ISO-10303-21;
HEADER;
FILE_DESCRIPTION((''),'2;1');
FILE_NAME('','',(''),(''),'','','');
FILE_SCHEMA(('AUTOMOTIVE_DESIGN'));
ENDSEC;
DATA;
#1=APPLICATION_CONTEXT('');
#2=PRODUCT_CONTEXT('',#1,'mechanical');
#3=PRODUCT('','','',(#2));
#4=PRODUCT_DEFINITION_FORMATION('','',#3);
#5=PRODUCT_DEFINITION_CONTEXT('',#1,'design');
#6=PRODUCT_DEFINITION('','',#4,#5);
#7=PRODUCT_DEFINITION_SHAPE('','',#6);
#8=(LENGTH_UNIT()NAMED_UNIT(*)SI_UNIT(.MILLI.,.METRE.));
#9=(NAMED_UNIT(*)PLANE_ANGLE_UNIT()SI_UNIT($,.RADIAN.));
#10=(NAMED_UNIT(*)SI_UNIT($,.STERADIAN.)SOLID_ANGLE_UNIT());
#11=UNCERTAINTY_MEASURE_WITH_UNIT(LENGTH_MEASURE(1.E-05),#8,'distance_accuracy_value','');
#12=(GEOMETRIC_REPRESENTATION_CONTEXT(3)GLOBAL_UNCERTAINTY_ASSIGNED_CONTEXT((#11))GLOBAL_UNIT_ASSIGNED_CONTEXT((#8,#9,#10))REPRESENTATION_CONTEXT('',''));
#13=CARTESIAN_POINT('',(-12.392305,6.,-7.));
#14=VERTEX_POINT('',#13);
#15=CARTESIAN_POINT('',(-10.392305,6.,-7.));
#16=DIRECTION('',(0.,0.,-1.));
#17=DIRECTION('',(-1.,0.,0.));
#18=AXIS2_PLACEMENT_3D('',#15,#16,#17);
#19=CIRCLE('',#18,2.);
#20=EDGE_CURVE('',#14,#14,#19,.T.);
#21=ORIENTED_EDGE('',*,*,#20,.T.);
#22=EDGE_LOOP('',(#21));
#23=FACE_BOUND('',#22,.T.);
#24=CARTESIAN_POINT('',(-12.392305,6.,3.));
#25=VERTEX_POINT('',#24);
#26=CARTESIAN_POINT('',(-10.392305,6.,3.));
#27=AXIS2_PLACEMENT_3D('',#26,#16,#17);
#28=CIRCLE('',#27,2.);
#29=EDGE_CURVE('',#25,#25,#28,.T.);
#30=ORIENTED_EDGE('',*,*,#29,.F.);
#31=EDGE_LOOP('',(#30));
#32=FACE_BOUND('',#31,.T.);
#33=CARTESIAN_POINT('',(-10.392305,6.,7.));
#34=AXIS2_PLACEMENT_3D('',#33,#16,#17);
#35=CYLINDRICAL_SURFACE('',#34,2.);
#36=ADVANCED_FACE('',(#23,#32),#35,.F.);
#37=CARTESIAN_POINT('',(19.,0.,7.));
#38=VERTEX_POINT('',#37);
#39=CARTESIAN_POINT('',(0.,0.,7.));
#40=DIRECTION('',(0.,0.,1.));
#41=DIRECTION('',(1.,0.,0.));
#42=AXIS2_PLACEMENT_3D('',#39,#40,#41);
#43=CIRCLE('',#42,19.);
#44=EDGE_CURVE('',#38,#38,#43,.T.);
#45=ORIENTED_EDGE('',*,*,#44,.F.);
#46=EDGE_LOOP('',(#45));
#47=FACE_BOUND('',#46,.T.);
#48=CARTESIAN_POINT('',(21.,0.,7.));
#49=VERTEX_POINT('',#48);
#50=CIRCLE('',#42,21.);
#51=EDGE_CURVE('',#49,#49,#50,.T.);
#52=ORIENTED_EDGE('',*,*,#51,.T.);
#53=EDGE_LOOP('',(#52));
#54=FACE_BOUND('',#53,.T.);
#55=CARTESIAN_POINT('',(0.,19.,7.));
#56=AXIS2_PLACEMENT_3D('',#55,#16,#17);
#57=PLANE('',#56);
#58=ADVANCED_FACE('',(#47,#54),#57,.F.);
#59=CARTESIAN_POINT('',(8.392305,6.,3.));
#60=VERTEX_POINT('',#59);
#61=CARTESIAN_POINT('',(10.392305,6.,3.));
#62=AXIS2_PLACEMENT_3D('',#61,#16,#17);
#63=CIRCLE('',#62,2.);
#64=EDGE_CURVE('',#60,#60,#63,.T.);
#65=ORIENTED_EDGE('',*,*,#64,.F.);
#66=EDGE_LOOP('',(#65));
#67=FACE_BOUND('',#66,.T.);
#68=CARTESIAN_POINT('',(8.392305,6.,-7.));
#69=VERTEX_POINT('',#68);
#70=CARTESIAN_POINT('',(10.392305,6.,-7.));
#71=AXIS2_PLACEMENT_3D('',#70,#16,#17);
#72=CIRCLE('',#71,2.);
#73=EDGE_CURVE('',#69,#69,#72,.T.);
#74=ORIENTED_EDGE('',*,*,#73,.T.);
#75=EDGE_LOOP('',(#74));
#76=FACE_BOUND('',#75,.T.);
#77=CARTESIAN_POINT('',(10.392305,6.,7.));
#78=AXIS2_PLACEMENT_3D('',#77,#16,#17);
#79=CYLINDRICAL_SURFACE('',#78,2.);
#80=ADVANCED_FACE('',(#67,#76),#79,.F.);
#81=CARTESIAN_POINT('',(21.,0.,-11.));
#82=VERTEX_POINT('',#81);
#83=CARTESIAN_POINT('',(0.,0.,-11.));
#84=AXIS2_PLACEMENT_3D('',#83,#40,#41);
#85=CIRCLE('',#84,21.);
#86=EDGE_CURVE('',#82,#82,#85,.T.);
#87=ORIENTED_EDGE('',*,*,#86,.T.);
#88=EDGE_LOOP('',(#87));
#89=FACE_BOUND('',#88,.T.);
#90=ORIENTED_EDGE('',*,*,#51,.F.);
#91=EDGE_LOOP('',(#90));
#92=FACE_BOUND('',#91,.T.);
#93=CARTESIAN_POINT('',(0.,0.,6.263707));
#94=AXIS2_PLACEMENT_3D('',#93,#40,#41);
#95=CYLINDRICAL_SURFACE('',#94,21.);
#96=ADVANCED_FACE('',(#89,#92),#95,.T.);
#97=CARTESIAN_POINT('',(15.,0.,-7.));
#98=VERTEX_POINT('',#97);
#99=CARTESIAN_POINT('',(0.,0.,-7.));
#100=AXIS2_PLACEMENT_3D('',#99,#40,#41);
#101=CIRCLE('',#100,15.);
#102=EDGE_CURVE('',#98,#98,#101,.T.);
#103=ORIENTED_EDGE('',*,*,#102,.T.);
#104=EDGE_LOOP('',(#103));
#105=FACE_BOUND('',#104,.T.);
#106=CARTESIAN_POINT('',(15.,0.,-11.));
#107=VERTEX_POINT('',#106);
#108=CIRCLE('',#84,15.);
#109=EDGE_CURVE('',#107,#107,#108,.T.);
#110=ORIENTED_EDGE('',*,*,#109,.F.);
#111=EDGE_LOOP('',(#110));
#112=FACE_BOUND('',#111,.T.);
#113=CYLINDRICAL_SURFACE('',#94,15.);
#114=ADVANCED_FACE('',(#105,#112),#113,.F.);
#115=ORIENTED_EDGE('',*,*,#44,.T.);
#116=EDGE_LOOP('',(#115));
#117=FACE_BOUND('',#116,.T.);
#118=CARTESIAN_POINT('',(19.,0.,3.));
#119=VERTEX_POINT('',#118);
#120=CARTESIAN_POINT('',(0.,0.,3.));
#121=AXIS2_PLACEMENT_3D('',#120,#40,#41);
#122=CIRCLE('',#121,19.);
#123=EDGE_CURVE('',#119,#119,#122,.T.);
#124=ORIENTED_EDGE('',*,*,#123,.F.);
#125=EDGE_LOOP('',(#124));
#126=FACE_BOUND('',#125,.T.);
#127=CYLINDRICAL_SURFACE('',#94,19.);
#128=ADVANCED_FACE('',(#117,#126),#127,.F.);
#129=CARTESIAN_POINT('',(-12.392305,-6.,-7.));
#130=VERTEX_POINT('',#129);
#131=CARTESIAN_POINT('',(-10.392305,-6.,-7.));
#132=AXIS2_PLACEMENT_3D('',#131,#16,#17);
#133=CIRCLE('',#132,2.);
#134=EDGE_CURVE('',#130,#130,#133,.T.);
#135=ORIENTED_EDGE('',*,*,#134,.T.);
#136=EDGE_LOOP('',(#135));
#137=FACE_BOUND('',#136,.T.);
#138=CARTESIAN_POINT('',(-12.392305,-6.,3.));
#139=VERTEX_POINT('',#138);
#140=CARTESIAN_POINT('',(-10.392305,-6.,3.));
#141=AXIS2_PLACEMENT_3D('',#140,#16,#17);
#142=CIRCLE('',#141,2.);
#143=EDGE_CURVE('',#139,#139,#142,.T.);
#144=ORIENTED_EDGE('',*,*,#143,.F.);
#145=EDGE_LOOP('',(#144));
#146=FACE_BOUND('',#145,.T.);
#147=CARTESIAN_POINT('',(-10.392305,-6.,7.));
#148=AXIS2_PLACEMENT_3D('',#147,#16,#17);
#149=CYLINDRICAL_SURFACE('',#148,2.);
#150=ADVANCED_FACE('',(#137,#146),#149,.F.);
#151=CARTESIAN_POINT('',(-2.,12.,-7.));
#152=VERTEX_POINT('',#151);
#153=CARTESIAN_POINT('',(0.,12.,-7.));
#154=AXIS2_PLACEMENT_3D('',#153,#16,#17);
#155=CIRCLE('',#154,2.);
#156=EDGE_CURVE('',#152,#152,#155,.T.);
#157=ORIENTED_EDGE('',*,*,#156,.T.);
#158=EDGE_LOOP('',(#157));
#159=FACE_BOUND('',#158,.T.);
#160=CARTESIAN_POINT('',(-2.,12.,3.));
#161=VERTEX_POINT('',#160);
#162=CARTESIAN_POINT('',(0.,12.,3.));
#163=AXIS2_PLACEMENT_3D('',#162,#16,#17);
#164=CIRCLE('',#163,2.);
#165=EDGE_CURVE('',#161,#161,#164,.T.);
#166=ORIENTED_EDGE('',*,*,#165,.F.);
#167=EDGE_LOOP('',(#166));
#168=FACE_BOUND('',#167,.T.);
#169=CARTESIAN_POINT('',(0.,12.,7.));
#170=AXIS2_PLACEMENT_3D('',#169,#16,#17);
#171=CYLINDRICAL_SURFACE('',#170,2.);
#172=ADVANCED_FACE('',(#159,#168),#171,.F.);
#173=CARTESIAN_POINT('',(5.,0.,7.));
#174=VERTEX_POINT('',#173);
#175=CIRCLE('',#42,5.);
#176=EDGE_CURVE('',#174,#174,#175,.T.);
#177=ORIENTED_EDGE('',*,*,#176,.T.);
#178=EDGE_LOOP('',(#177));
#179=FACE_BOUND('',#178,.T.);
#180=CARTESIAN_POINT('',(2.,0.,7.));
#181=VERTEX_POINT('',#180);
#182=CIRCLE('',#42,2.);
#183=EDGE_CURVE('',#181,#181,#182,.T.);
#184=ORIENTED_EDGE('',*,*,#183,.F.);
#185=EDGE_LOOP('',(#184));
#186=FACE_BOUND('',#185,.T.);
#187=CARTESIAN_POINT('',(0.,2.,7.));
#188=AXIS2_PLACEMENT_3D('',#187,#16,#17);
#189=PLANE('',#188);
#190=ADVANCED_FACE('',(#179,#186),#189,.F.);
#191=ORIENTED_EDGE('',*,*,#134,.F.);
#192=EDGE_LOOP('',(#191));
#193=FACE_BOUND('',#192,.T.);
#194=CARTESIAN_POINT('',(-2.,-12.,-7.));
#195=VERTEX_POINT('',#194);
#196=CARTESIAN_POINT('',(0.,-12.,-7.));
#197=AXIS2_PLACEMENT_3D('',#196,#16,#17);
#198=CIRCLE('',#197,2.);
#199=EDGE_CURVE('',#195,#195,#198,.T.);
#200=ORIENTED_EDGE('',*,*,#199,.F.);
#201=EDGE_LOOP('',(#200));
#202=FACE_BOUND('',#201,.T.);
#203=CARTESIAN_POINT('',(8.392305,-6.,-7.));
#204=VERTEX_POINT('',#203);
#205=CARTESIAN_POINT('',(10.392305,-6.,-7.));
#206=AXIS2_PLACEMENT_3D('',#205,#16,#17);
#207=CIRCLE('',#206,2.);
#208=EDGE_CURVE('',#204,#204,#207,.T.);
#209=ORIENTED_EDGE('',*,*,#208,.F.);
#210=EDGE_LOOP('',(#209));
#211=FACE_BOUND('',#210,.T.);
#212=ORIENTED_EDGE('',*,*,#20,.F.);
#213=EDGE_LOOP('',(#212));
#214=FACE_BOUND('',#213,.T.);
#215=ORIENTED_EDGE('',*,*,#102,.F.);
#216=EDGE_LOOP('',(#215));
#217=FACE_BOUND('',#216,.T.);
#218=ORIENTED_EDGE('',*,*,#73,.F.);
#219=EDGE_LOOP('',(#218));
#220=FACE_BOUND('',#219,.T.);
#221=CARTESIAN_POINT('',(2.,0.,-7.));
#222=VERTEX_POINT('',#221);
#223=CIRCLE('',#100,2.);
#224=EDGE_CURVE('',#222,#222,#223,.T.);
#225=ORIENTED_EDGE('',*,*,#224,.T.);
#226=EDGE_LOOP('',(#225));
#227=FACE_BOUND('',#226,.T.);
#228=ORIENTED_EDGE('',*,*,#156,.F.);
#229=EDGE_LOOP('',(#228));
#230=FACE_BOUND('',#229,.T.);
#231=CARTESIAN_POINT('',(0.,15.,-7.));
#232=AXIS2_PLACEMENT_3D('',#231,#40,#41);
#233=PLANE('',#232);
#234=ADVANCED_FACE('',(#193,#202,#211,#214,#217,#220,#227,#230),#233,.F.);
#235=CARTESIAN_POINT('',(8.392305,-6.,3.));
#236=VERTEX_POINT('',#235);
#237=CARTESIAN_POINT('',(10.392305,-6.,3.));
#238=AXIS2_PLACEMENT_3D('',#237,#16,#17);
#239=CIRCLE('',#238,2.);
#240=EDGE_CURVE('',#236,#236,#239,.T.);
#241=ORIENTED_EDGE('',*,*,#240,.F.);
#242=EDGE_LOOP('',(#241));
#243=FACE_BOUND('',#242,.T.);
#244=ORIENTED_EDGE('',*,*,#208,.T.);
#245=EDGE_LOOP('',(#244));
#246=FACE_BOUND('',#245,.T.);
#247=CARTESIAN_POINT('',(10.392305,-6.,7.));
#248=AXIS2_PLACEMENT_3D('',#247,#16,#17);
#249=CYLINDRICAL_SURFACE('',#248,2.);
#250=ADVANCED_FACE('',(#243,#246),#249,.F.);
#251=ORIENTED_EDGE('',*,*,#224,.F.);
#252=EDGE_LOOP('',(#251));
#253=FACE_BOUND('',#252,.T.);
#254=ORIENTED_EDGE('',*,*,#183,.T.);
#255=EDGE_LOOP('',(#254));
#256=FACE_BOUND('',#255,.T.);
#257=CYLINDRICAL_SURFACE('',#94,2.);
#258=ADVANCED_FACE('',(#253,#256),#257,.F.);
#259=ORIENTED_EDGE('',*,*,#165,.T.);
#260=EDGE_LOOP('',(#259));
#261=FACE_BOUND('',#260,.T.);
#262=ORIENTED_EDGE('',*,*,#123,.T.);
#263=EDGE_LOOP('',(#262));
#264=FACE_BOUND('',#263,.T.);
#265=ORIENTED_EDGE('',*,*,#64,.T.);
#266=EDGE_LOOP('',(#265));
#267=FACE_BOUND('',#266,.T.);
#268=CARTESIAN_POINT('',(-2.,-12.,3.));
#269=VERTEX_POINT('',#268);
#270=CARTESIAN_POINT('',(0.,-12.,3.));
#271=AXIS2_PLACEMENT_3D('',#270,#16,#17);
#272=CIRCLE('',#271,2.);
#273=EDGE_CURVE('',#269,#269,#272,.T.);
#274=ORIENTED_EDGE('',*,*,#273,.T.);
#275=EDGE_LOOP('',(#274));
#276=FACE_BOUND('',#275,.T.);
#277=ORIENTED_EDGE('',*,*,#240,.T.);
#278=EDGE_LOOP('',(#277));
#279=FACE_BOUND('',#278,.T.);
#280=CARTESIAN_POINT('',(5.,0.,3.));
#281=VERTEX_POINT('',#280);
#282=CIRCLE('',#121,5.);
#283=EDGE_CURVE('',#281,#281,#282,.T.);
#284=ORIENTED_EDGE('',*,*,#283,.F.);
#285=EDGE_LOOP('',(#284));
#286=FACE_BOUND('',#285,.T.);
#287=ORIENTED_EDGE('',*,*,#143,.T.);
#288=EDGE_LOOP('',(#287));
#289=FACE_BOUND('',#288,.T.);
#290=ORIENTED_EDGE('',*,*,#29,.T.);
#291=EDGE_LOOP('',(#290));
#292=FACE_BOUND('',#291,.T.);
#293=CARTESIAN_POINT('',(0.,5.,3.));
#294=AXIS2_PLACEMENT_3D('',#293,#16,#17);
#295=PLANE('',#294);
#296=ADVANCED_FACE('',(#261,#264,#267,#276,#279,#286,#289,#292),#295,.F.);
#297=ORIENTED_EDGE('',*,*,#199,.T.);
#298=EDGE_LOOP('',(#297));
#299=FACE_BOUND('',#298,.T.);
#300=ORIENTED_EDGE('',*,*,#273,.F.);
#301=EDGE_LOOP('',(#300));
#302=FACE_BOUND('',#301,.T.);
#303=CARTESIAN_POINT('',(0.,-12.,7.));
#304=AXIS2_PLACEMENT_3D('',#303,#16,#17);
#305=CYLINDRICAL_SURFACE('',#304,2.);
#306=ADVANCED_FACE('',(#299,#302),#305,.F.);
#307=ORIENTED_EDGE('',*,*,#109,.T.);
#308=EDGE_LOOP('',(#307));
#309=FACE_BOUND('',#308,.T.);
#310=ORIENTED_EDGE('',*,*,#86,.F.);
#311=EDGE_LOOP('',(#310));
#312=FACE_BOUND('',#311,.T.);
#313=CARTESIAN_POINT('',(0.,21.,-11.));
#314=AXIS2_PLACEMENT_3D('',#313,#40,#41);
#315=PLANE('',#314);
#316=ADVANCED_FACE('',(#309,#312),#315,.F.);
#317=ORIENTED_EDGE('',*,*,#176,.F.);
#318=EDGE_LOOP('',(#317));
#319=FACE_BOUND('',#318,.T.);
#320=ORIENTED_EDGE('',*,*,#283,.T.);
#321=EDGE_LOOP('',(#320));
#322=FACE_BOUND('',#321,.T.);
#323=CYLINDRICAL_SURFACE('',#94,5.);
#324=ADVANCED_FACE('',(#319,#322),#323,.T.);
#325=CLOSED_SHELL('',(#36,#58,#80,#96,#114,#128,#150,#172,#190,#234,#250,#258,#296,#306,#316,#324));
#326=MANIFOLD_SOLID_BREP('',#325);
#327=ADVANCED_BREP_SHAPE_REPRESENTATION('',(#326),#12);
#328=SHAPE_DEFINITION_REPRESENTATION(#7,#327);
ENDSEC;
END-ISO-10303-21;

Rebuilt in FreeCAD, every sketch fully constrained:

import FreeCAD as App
import Part
import Sketcher

doc = App.newDocument("Part")
params = doc.addObject("Spreadsheet::Sheet", "Params")
for row, (alias, value) in enumerate([
    ("sketch1_width", "3 mm"),
    ("sketch1_width2", "13 mm"),
    ("sketch1_width3", "6 mm"),
    ("sketch1_width4", "2 mm"),
    ("sketch1_height", "4 mm"),
    ("revolution_angle", "360 deg"),
    ("sketch2_diameter", "4 mm"),
], start=1):
    params.set(f"A{row}", alias)
    params.set(f"B{row}", "=" + value)
    params.setAlias(f"B{row}", alias)

body = doc.addObject("PartDesign::Body", "Body")

# Sketch on YZ plane
sketch1 = body.newObject("Sketcher::SketchObject", "Sketch")
sketch1.AttachmentSupport = (doc.getObject("YZ_Plane"), [""])
sketch1.MapMode = "FlatFace"
sketch1.addGeometry([
    Part.LineSegment(App.Vector(5, 7, 0), App.Vector(2, 7, 0)),  # 0
    Part.LineSegment(App.Vector(2, 7, 0), App.Vector(2, -7, 0)),  # 1
    Part.LineSegment(App.Vector(2, -7, 0), App.Vector(15, -7, 0)),  # 2
    Part.LineSegment(App.Vector(15, -7, 0), App.Vector(15, -11, 0)),  # 3
    Part.LineSegment(App.Vector(15, -11, 0), App.Vector(21, -11, 0)),  # 4
    Part.LineSegment(App.Vector(21, -11, 0), App.Vector(21, 7, 0)),  # 5
    Part.LineSegment(App.Vector(21, 7, 0), App.Vector(19, 7, 0)),  # 6
    Part.LineSegment(App.Vector(19, 7, 0), App.Vector(19, 3, 0)),  # 7
    Part.LineSegment(App.Vector(19, 3, 0), App.Vector(5, 3, 0)),  # 8
    Part.LineSegment(App.Vector(5, 3, 0), App.Vector(5, 7, 0)),  # 9
], False)
sketch1.addConstraint([
    Sketcher.Constraint("Coincident", 0, 2, 1, 1),
    Sketcher.Constraint("Coincident", 1, 2, 2, 1),
    Sketcher.Constraint("Coincident", 2, 2, 3, 1),
    Sketcher.Constraint("Coincident", 3, 2, 4, 1),
    Sketcher.Constraint("Coincident", 4, 2, 5, 1),
    Sketcher.Constraint("Coincident", 5, 2, 6, 1),
    Sketcher.Constraint("Coincident", 6, 2, 7, 1),
    Sketcher.Constraint("Coincident", 7, 2, 8, 1),
    Sketcher.Constraint("Coincident", 8, 2, 9, 1),
    Sketcher.Constraint("Coincident", 9, 2, 0, 1),
    Sketcher.Constraint("Horizontal", 0),
    Sketcher.Constraint("Vertical", 1),
    Sketcher.Constraint("Horizontal", 2),
    Sketcher.Constraint("Vertical", 3),
    Sketcher.Constraint("Horizontal", 4),
    Sketcher.Constraint("Vertical", 5),
    Sketcher.Constraint("Horizontal", 6),
    Sketcher.Constraint("Vertical", 7),
    Sketcher.Constraint("Horizontal", 8),
    Sketcher.Constraint("Vertical", 9),
    Sketcher.Constraint("Horizontal", 0, 2, 5, 2),
    Sketcher.Constraint("Equal", 8, 1),
    Sketcher.Constraint("Equal", 3, 7),
    Sketcher.Constraint("DistanceX", 0, 2, 0, 1, 3.0),
    Sketcher.Constraint("DistanceX", 2, 1, 2, 2, 13.0),
    Sketcher.Constraint("DistanceX", 4, 1, 4, 2, 6.0),
    Sketcher.Constraint("DistanceX", 6, 2, 6, 1, 2.0),
    Sketcher.Constraint("DistanceY", 3, 2, 3, 1, 4.0),
    Sketcher.Constraint("DistanceX", -1, 1, 0, 2, 2.0),
    Sketcher.Constraint("DistanceY", -1, 1, 0, 2, 7.0),
])
sketch1.setExpression("Constraints[23]", "Params.sketch1_width")
sketch1.setExpression("Constraints[24]", "Params.sketch1_width2")
sketch1.setExpression("Constraints[25]", "Params.sketch1_width3")
sketch1.setExpression("Constraints[26]", "Params.sketch1_width4")
sketch1.setExpression("Constraints[27]", "Params.sketch1_height")
revolution = body.newObject("PartDesign::Revolution", "Revolution")
revolution.Profile = sketch1
revolution.ReferenceAxis = (sketch1, ["V_Axis"])
revolution.setExpression("Angle", "Params.revolution_angle")

# Sketch on XY plane
sketch2 = body.newObject("Sketcher::SketchObject", "Sketch001")
sketch2.AttachmentSupport = (doc.getObject("XY_Plane"), [""])
sketch2.MapMode = "FlatFace"
sketch2.AttachmentOffset = App.Placement(App.Vector(0, 0, -7), App.Rotation())
sketch2.addGeometry([
    Part.Circle(App.Vector(0, 12, 0), App.Vector(0, 0, 1), 2),  # 0
    Part.Circle(App.Vector(-10.4, 6, 0), App.Vector(0, 0, 1), 2),  # 1
    Part.Circle(App.Vector(-10.4, -6, 0), App.Vector(0, 0, 1), 2),  # 2
    Part.Circle(App.Vector(0, -12, 0), App.Vector(0, 0, 1), 2),  # 3
    Part.Circle(App.Vector(10.4, -6, 0), App.Vector(0, 0, 1), 2),  # 4
    Part.Circle(App.Vector(10.4, 6, 0), App.Vector(0, 0, 1), 2),  # 5
], False)
sketch2.addConstraint([
    Sketcher.Constraint("Equal", 0, 1),
    Sketcher.Constraint("Equal", 1, 2),
    Sketcher.Constraint("Equal", 2, 3),
    Sketcher.Constraint("Equal", 3, 4),
    Sketcher.Constraint("Equal", 4, 5),
    Sketcher.Constraint("Symmetric", 0, 3, 3, 3, -1, 1),
    Sketcher.Constraint("Symmetric", 1, 3, 4, 3, -1, 1),
    Sketcher.Constraint("Symmetric", 2, 3, 5, 3, -1, 1),
    Sketcher.Constraint("Symmetric", 2, 3, 4, 3, -2),
    Sketcher.Constraint("PointOnObject", 0, 3, -2),
    Sketcher.Constraint("Diameter", 0, 4.0),
    Sketcher.Constraint("DistanceY", -1, 1, 0, 3, 12.0),
    Sketcher.Constraint("DistanceY", -1, 1, 1, 3, 6.0),
    Sketcher.Constraint("DistanceX", 2, 3, 4, 3, 20.78461),
])
sketch2.setExpression("Constraints[10]", "Params.sketch2_diameter")
pocket1 = body.newObject("PartDesign::Pocket", "Pocket")
pocket1.Profile = sketch2
pocket1.Type = "ThroughAll"
pocket1.Reversed = True

doc.recompute()
